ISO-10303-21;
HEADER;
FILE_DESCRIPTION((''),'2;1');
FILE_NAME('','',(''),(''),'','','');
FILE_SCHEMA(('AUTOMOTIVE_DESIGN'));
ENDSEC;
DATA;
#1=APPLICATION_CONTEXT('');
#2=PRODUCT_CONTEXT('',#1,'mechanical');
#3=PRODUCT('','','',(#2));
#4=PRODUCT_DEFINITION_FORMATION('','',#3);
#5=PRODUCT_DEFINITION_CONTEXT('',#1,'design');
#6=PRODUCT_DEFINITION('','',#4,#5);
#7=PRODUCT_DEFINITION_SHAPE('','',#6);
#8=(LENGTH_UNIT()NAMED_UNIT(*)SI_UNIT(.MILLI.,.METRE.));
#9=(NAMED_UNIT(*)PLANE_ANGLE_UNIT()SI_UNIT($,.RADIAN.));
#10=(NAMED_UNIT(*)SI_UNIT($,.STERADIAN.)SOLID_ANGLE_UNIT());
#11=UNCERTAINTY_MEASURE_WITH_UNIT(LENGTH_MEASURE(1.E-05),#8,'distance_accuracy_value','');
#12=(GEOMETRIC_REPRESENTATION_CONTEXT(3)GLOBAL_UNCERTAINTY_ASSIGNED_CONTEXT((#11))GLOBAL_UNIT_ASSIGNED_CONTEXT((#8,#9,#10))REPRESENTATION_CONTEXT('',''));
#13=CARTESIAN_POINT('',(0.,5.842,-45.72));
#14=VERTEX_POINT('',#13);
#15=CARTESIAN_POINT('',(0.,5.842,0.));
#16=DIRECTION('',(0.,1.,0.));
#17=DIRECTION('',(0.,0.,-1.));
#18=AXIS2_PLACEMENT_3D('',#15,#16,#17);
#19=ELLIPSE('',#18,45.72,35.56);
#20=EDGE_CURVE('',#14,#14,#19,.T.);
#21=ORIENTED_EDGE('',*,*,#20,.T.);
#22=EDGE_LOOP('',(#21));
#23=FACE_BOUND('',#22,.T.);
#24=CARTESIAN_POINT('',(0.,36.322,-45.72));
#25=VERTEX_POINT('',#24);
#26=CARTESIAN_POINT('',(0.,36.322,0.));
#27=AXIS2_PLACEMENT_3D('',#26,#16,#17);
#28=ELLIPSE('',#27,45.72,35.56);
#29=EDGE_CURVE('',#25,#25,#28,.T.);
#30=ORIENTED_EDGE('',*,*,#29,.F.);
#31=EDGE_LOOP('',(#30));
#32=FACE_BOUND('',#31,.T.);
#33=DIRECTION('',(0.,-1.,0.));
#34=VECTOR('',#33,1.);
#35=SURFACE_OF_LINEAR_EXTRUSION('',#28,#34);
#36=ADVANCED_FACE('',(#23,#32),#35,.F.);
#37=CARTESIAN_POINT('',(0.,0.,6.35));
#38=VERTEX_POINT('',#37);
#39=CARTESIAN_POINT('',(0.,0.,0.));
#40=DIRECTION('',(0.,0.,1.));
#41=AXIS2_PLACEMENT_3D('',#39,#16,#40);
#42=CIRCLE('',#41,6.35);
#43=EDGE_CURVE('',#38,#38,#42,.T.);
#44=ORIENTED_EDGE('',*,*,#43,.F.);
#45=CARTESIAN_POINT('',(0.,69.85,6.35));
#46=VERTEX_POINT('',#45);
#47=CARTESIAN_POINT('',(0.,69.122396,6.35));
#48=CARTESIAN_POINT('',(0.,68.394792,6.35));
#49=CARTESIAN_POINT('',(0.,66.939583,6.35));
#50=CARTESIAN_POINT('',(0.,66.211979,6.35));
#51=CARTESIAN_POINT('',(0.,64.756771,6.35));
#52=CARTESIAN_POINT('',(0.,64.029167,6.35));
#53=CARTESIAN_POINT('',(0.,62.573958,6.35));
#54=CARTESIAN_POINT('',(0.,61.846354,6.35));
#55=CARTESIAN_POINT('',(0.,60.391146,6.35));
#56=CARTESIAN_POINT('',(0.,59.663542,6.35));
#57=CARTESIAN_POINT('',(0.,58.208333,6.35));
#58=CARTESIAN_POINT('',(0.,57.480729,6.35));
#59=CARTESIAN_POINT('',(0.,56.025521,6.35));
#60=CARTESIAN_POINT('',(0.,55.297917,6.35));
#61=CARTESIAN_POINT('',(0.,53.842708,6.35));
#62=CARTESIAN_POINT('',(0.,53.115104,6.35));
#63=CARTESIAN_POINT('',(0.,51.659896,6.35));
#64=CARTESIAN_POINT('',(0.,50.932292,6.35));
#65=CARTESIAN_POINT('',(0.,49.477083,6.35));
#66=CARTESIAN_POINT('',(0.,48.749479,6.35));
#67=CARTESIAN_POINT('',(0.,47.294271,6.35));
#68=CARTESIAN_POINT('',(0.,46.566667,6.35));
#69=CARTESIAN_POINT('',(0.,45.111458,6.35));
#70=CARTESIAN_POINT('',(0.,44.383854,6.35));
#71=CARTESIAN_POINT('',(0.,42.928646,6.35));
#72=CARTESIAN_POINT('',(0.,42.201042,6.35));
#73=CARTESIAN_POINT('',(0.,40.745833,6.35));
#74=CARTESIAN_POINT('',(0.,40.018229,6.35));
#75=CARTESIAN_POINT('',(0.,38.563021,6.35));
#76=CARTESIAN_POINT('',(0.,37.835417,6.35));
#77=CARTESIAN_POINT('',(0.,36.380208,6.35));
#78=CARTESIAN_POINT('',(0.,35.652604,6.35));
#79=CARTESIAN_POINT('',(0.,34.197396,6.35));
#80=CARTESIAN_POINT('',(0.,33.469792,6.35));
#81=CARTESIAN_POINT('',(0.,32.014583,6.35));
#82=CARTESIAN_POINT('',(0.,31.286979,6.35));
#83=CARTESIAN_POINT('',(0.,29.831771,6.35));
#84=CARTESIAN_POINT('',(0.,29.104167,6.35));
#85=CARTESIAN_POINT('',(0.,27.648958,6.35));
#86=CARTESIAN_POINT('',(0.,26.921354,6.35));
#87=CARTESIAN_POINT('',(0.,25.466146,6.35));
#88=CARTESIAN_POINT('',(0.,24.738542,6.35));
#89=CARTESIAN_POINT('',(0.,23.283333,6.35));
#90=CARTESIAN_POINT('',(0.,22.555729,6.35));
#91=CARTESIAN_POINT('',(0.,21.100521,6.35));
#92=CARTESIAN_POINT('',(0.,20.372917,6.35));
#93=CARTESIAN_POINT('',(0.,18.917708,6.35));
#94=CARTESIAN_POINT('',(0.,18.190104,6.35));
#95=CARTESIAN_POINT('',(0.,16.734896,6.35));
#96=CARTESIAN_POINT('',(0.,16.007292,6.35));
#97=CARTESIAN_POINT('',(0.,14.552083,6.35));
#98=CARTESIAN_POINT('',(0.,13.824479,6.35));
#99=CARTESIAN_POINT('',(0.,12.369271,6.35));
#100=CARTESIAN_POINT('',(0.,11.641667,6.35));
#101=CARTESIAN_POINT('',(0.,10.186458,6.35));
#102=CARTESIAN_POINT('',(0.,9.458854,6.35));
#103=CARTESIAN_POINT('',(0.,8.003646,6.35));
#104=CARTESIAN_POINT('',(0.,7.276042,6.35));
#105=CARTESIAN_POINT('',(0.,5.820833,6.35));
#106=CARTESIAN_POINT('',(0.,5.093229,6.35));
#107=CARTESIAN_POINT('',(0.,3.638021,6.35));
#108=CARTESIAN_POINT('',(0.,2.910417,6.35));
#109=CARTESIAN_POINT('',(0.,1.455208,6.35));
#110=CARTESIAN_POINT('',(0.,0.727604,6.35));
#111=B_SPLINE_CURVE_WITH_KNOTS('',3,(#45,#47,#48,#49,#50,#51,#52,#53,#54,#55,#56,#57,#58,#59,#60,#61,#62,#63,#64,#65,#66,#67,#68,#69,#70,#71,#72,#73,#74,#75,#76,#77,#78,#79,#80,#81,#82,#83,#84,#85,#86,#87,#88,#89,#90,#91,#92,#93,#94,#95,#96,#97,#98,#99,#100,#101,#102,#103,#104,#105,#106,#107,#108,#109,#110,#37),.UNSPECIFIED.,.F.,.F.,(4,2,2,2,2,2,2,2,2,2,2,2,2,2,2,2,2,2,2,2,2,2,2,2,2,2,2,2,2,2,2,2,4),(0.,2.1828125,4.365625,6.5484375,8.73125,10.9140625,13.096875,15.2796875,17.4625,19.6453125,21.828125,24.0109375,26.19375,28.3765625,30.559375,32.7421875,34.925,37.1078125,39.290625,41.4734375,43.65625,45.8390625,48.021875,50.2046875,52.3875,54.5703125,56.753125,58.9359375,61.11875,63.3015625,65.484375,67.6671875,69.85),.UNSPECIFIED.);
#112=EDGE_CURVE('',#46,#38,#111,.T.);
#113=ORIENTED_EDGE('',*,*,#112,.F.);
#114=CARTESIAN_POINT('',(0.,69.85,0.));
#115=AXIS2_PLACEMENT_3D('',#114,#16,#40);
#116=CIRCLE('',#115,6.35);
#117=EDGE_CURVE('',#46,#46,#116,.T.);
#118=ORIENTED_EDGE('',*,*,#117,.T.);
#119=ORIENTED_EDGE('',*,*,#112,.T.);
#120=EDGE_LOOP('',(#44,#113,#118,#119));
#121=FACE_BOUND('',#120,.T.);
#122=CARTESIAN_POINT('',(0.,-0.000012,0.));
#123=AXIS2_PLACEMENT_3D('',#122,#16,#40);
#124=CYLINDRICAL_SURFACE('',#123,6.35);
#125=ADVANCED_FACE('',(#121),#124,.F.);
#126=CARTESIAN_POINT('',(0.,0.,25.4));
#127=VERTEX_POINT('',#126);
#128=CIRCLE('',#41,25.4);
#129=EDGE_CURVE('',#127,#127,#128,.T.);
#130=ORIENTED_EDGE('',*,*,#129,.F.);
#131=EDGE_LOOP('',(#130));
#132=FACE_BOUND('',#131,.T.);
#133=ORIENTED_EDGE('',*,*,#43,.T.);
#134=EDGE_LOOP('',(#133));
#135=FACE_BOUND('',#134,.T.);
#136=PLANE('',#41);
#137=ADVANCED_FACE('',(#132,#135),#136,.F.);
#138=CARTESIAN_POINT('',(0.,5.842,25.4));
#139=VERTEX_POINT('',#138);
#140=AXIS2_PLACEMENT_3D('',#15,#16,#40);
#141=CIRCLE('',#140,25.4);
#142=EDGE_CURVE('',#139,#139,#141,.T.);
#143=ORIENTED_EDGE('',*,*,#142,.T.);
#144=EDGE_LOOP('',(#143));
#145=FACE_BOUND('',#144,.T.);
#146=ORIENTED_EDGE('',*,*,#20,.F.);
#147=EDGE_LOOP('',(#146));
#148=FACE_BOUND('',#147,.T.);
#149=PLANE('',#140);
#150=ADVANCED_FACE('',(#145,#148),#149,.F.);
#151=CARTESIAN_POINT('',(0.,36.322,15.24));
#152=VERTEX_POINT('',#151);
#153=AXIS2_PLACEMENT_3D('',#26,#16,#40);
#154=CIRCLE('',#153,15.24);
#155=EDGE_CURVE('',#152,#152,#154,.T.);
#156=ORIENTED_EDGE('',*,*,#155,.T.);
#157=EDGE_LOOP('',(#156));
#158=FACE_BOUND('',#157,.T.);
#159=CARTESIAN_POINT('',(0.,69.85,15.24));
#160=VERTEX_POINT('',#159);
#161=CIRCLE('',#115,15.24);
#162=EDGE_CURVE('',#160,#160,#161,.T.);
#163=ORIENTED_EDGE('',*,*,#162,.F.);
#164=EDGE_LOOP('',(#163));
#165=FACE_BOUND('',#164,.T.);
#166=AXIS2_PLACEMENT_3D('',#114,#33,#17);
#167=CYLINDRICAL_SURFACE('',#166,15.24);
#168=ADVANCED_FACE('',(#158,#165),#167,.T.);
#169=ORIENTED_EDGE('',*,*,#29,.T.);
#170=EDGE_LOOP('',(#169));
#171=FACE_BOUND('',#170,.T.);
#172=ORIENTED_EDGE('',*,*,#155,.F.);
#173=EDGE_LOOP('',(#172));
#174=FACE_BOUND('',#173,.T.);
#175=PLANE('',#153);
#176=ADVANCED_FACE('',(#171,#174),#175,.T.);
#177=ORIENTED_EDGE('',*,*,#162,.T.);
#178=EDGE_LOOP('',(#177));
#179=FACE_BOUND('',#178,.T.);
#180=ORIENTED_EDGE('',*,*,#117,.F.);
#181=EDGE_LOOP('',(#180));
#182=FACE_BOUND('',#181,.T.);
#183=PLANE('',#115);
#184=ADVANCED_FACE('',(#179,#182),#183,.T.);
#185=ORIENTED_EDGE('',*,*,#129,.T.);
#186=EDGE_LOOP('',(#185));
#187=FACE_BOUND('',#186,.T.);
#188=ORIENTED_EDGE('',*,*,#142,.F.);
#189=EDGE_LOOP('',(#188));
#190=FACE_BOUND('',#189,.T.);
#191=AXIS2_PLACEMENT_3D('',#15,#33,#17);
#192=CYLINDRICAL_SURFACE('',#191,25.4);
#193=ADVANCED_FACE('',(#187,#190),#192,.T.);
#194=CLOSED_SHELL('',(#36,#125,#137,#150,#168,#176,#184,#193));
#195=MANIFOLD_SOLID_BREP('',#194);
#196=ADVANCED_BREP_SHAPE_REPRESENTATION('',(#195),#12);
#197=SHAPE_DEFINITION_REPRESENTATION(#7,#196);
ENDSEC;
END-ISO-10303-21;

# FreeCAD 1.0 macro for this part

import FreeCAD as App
import Part
import Sketcher

V = App.Vector
Q = App.Units.Quantity

doc = App.newDocument("Part")
body = doc.addObject("PartDesign::Body", "Body")

# Sketch on XZ plane
sketch1 = doc.addObject("Sketcher::SketchObject", "Sketch")
body.addObject(sketch1)
sketch1.AttachmentSupport = (doc.XZ_Plane, [""])
sketch1.MapMode = "FlatFace"
sketch1.addGeometry(Part.Circle(V(0, 0, 0), V(0, 0, 1), 25), False)
sketch1.addConstraint(Sketcher.Constraint("Coincident", 0, 3, -1, 1))
sketch1.addConstraint(Sketcher.Constraint("Diameter", 0, Q("2 in")))
pad1 = doc.addObject("PartDesign::Pad", "Pad")
body.addObject(pad1)
pad1.Profile = sketch1
pad1.Length = Q("0.23 in")
pad1.Reversed = True

# Sketch on XZ plane
sketch2 = doc.addObject("Sketcher::SketchObject", "Sketch001")
body.addObject(sketch2)
sketch2.AttachmentSupport = (doc.XZ_Plane, [""])
sketch2.MapMode = "FlatFace"
sketch2.AttachmentOffset = App.Placement(V(0, 0, -0.23 * 25.4), App.Rotation())
sketch2.addGeometry(Part.Ellipse(V(0, -45.72, 0), V(35.56, 0, 0), V(0, 0, 0)), False)
sketch2.addConstraint(Sketcher.Constraint("Block", 0))
pad2 = doc.addObject("PartDesign::Pad", "Pad001")
body.addObject(pad2)
pad2.Profile = sketch2
pad2.Length = Q("1.2 in")
pad2.Reversed = True

# Sketch on XZ plane
sketch3 = doc.addObject("Sketcher::SketchObject", "Sketch002")
body.addObject(sketch3)
sketch3.AttachmentSupport = (doc.XZ_Plane, [""])
sketch3.MapMode = "FlatFace"
sketch3.AttachmentOffset = App.Placement(V(0, 0, -1.43 * 25.4), App.Rotation())
sketch3.addGeometry(Part.Circle(V(0, 0, 0), V(0, 0, 1), 15), False)
sketch3.addConstraint(Sketcher.Constraint("Coincident", 0, 3, -1, 1))
sketch3.addConstraint(Sketcher.Constraint("Diameter", 0, Q("1.2 in")))
pad3 = doc.addObject("PartDesign::Pad", "Pad002")
body.addObject(pad3)
pad3.Profile = sketch3
pad3.Length = Q("1.32 in")
pad3.Reversed = True

# Sketch on XZ plane
sketch4 = doc.addObject("Sketcher::SketchObject", "Sketch003")
body.addObject(sketch4)
sketch4.AttachmentSupport = (doc.XZ_Plane, [""])
sketch4.MapMode = "FlatFace"
sketch4.addGeometry(Part.Circle(V(0, 0, 0), V(0, 0, 1), 6), False)
sketch4.addConstraint(Sketcher.Constraint("Coincident", 0, 3, -1, 1))
sketch4.addConstraint(Sketcher.Constraint("Diameter", 0, Q("0.5 in")))
pocket1 = doc.addObject("PartDesign::Pocket", "Pocket")
body.addObject(pocket1)
pocket1.Profile = sketch4
pocket1.Type = "ThroughAll"
pocket1.Midplane = True

doc.recompute()
